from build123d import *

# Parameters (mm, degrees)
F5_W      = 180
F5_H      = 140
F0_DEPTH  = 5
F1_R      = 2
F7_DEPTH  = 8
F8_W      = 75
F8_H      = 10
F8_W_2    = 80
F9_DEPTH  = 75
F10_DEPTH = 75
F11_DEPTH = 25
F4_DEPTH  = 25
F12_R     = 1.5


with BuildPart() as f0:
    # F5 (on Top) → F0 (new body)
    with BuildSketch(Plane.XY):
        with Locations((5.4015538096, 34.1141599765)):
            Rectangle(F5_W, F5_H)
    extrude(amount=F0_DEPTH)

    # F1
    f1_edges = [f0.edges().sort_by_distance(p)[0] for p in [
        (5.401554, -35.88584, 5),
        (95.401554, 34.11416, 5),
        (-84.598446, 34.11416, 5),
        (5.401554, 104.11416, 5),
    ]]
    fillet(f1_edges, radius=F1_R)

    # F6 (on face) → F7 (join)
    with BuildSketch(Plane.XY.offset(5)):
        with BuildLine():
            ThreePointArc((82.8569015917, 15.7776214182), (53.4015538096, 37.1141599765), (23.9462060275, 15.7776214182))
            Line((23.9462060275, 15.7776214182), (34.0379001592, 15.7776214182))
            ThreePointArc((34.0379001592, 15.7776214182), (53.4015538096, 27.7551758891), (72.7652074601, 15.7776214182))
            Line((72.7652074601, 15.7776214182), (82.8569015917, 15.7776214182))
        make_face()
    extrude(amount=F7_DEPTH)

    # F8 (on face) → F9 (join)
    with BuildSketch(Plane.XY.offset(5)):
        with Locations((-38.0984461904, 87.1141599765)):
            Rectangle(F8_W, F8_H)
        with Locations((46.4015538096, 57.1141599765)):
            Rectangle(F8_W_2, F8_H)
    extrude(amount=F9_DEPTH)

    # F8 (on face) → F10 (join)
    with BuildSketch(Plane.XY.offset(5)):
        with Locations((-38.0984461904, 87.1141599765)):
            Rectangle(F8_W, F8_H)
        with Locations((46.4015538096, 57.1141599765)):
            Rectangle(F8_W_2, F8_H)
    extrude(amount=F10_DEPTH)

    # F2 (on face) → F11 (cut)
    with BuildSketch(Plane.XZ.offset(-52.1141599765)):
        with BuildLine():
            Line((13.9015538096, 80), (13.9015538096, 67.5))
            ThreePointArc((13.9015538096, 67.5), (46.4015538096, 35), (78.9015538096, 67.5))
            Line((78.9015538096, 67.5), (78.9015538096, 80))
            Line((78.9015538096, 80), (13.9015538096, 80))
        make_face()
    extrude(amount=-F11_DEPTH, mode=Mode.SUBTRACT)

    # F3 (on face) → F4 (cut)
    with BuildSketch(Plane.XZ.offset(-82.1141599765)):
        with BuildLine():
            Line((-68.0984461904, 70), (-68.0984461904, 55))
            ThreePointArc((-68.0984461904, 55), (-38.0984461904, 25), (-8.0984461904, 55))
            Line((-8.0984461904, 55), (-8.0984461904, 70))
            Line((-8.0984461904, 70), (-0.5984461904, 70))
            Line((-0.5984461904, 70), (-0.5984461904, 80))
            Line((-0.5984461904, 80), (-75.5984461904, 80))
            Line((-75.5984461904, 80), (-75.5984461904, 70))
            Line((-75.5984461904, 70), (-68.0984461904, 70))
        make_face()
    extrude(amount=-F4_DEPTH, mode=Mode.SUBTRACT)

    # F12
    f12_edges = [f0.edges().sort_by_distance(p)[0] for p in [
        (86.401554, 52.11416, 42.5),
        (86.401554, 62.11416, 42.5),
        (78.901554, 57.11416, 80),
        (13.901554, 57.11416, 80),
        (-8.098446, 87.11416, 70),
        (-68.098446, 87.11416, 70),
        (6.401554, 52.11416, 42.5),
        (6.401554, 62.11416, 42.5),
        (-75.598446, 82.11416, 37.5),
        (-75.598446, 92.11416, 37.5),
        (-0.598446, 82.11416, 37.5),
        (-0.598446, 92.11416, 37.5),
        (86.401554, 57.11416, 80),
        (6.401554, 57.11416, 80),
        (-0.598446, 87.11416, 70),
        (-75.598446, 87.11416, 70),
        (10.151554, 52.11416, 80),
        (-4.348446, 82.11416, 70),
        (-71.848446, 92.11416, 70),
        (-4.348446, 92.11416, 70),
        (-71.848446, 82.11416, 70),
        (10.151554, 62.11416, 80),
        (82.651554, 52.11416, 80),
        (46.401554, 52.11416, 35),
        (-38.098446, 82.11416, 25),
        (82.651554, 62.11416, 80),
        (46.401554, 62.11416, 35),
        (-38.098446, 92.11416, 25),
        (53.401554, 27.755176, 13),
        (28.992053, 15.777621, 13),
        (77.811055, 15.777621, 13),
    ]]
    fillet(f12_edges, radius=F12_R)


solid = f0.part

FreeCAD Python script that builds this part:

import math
import FreeCAD as App
import Part
import Sketcher
Q = App.Units.Quantity


def edges_at(feature, points):
    """Names of the edges that pass closest to the given points."""
    edges = feature.Shape.Edges
    near = lambda p: min(range(len(edges)), key=lambda i: edges[i].distToShape(Part.Vertex(*p))[0])
    return sorted({f"Edge{near(p) + 1}" for p in points})

doc = App.newDocument("Part")
params = doc.addObject("Spreadsheet::Sheet", "Params")
for row, (alias, value) in enumerate([
    ("sketch1_width", "180 mm"),
    ("sketch1_height", "140 mm"),
    ("pad1_length", "5 mm"),
    ("fillet_radius", "2 mm"),
    ("sketch2_radius", "31 mm"),
    ("pad2_length", "8 mm"),
    ("sketch3_width", "75 mm"),
    ("sketch3_width2", "80 mm"),
    ("sketch3_height", "10 mm"),
    ("pad3_length", "75 mm"),
    ("sketch4_width", "75 mm"),
    ("sketch4_width2", "80 mm"),
    ("sketch4_height", "10 mm"),
    ("pad4_length", "75 mm"),
    ("sketch5_radius", "32.5 mm"),
    ("sketch5_height", "12.5 mm"),
    ("pocket1_length", "25 mm"),
    ("sketch6_radius", "30 mm"),
    ("sketch6_width", "75 mm"),
    ("sketch6_height", "15 mm"),
    ("sketch6_height2", "10 mm"),
    ("pocket2_length", "25 mm"),
    ("fillet2_radius", "1.5 mm"),
], start=1):
    params.set(f"A{row}", alias)
    params.set(f"B{row}", "=" + value)
    params.setAlias(f"B{row}", alias)

body = doc.addObject("PartDesign::Body", "Body")

sketch1 = doc.addObject("Sketcher::SketchObject", "Sketch")
body.addObject(sketch1)
sketch1.AttachmentSupport = (doc.XY_Plane, [""])
sketch1.MapMode = "FlatFace"
sketch1.addGeometry([
    Part.LineSegment(App.Vector(-85, 104, 0), App.Vector(-85, -36, 0)),
    Part.LineSegment(App.Vector(-85, -36, 0), App.Vector(95, -36, 0)),
    Part.LineSegment(App.Vector(95, -36, 0), App.Vector(95, 104, 0)),
    Part.LineSegment(App.Vector(95, 104, 0), App.Vector(-85, 104, 0)),
], False)
sketch1.addConstraint([
    Sketcher.Constraint("Coincident", 0, 2, 1, 1),
    Sketcher.Constraint("Coincident", 1, 2, 2, 1),
    Sketcher.Constraint("Coincident", 2, 2, 3, 1),
    Sketcher.Constraint("Coincident", 3, 2, 0, 1),
    Sketcher.Constraint("Vertical", 0),
    Sketcher.Constraint("Horizontal", 1),
    Sketcher.Constraint("Vertical", 2),
    Sketcher.Constraint("Horizontal", 3),
    Sketcher.Constraint("DistanceX", 1, 1, 1, 2, Q("180 mm")),
    Sketcher.Constraint("DistanceY", 0, 2, 0, 1, Q("140 mm")),
    Sketcher.Constraint("DistanceY", 0, 2, -1, 1, Q("35.88584 mm")),
    Sketcher.Constraint("DistanceX", 0, 2, -1, 1, Q("84.598446 mm")),
])
sketch1.setExpression("Constraints[8]", "Params.sketch1_width")
sketch1.setExpression("Constraints[9]", "Params.sketch1_height")
pad1 = doc.addObject("PartDesign::Pad", "Pad")
body.addObject(pad1)
pad1.Profile = sketch1
pad1.setExpression("Length", "Params.pad1_length")
doc.recompute()

fillet = doc.addObject("PartDesign::Fillet", "Fillet")
body.addObject(fillet)
fillet.Base = (pad1, edges_at(pad1, [
    (5.402, -35.886, 5),
    (95.402, 34.114, 5),
    (-84.598, 34.114, 5),
    (5.402, 104.114, 5),
]))
fillet.setExpression("Radius", "Params.fillet_radius")

sketch2 = doc.addObject("Sketcher::SketchObject", "Sketch001")
body.addObject(sketch2)
sketch2.AttachmentSupport = (doc.XY_Plane, [""])
sketch2.MapMode = "FlatFace"
sketch2.AttachmentOffset = App.Placement(App.Vector(0, 0, 5), App.Rotation())
sketch2.addGeometry([
    Part.ArcOfCircle(Part.Circle(App.Vector(53, 6, 0), App.Vector(0, 0, 1), 31), math.radians(18), math.radians(162)),
    Part.LineSegment(App.Vector(24, 16, 0), App.Vector(34, 16, 0)),
    Part.ArcOfCircle(Part.Circle(App.Vector(53, 6, 0), App.Vector(0, 0, 1), 22), math.radians(27), math.radians(153)),
    Part.LineSegment(App.Vector(73, 16, 0), App.Vector(83, 16, 0)),
], False)
sketch2.addConstraint([
    Sketcher.Constraint("Coincident", 0, 2, 1, 1),
    Sketcher.Constraint("Coincident", 1, 2, 2, 2),
    Sketcher.Constraint("Coincident", 2, 1, 3, 1),
    Sketcher.Constraint("Coincident", 3, 2, 0, 1),
    Sketcher.Constraint("Horizontal", 1),
    Sketcher.Constraint("Horizontal", 3),
    Sketcher.Constraint("Coincident", 2, 3, 0, 3),
    Sketcher.Constraint("Horizontal", 1, 2, 2, 1),
    Sketcher.Constraint("Radius", 0, Q("31 mm")),
    Sketcher.Constraint("Radius", 2, Q("21.641016 mm")),
    Sketcher.Constraint("DistanceX", 0, 2, 2, 1, Q("48.819001 mm")),
    Sketcher.Constraint("DistanceX", -1, 1, 1, 2, Q("34.0379 mm")),
    Sketcher.Constraint("DistanceY", -1, 1, 0, 3, Q("6.11416 mm")),
])
sketch2.setExpression("Constraints[8]", "Params.sketch2_radius")
pad2 = doc.addObject("PartDesign::Pad", "Pad001")
body.addObject(pad2)
pad2.Profile = sketch2
pad2.setExpression("Length", "Params.pad2_length")

sketch3 = doc.addObject("Sketcher::SketchObject", "Sketch002")
body.addObject(sketch3)
sketch3.AttachmentSupport = (doc.XY_Plane, [""])
sketch3.MapMode = "FlatFace"
sketch3.AttachmentOffset = App.Placement(App.Vector(0, 0, 5), App.Rotation())
sketch3.addGeometry([
    Part.LineSegment(App.Vector(-76, 92, 0), App.Vector(-76, 82, 0)),
    Part.LineSegment(App.Vector(-76, 82, 0), App.Vector(-1, 82, 0)),
    Part.LineSegment(App.Vector(-1, 82, 0), App.Vector(-1, 92, 0)),
    Part.LineSegment(App.Vector(-1, 92, 0), App.Vector(-76, 92, 0)),
    Part.LineSegment(App.Vector(6, 62, 0), App.Vector(6, 52, 0)),
    Part.LineSegment(App.Vector(6, 52, 0), App.Vector(86, 52, 0)),
    Part.LineSegment(App.Vector(86, 52, 0), App.Vector(86, 62, 0)),
    Part.LineSegment(App.Vector(86, 62, 0), App.Vector(6, 62, 0)),
], False)
sketch3.addConstraint([
    Sketcher.Constraint("Coincident", 0, 2, 1, 1),
    Sketcher.Constraint("Coincident", 1, 2, 2, 1),
    Sketcher.Constraint("Coincident", 2, 2, 3, 1),
    Sketcher.Constraint("Coincident", 3, 2, 0, 1),
    Sketcher.Constraint("Coincident", 4, 2, 5, 1),
    Sketcher.Constraint("Coincident", 5, 2, 6, 1),
    Sketcher.Constraint("Coincident", 6, 2, 7, 1),
    Sketcher.Constraint("Coincident", 7, 2, 4, 1),
    Sketcher.Constraint("Vertical", 0),
    Sketcher.Constraint("Horizontal", 1),
    Sketcher.Constraint("Vertical", 2),
    Sketcher.Constraint("Horizontal", 3),
    Sketcher.Constraint("Vertical", 4),
    Sketcher.Constraint("Horizontal", 5),
    Sketcher.Constraint("Vertical", 6),
    Sketcher.Constraint("Horizontal", 7),
    Sketcher.Constraint("Equal", 2, 4),
    Sketcher.Constraint("DistanceX", 1, 1, 1, 2, Q("75 mm")),
    Sketcher.Constraint("DistanceX", 5, 1, 5, 2, Q("80 mm")),
    Sketcher.Constraint("DistanceY", 0, 2, 0, 1, Q("10 mm")),
    Sketcher.Constraint("DistanceX", 1, 2, 4, 2, Q("7 mm")),
    Sketcher.Constraint("DistanceY", 4, 2, 1, 2, Q("30 mm")),
    Sketcher.Constraint("DistanceY", -1, 1, 0, 2, Q("82.11416 mm")),
    Sketcher.Constraint("DistanceX", 0, 2, -1, 1, Q("75.598446 mm")),
])
sketch3.setExpression("Constraints[17]", "Params.sketch3_width")
sketch3.setExpression("Constraints[18]", "Params.sketch3_width2")
sketch3.setExpression("Constraints[19]", "Params.sketch3_height")
pad3 = doc.addObject("PartDesign::Pad", "Pad002")
body.addObject(pad3)
pad3.Profile = sketch3
pad3.setExpression("Length", "Params.pad3_length")

sketch4 = doc.addObject("Sketcher::SketchObject", "Sketch003")
body.addObject(sketch4)
sketch4.AttachmentSupport = (doc.XY_Plane, [""])
sketch4.MapMode = "FlatFace"
sketch4.AttachmentOffset = App.Placement(App.Vector(0, 0, 5), App.Rotation())
sketch4.addGeometry([
    Part.LineSegment(App.Vector(-76, 92, 0), App.Vector(-76, 82, 0)),
    Part.LineSegment(App.Vector(-76, 82, 0), App.Vector(-1, 82, 0)),
    Part.LineSegment(App.Vector(-1, 82, 0), App.Vector(-1, 92, 0)),
    Part.LineSegment(App.Vector(-1, 92, 0), App.Vector(-76, 92, 0)),
    Part.LineSegment(App.Vector(6, 62, 0), App.Vector(6, 52, 0)),
    Part.LineSegment(App.Vector(6, 52, 0), App.Vector(86, 52, 0)),
    Part.LineSegment(App.Vector(86, 52, 0), App.Vector(86, 62, 0)),
    Part.LineSegment(App.Vector(86, 62, 0), App.Vector(6, 62, 0)),
], False)
sketch4.addConstraint([
    Sketcher.Constraint("Coincident", 0, 2, 1, 1),
    Sketcher.Constraint("Coincident", 1, 2, 2, 1),
    Sketcher.Constraint("Coincident", 2, 2, 3, 1),
    Sketcher.Constraint("Coincident", 3, 2, 0, 1),
    Sketcher.Constraint("Coincident", 4, 2, 5, 1),
    Sketcher.Constraint("Coincident", 5, 2, 6, 1),
    Sketcher.Constraint("Coincident", 6, 2, 7, 1),
    Sketcher.Constraint("Coincident", 7, 2, 4, 1),
    Sketcher.Constraint("Vertical", 0),
    Sketcher.Constraint("Horizontal", 1),
    Sketcher.Constraint("Vertical", 2),
    Sketcher.Constraint("Horizontal", 3),
    Sketcher.Constraint("Vertical", 4),
    Sketcher.Constraint("Horizontal", 5),
    Sketcher.Constraint("Vertical", 6),
    Sketcher.Constraint("Horizontal", 7),
    Sketcher.Constraint("Equal", 2, 4),
    Sketcher.Constraint("DistanceX", 1, 1, 1, 2, Q("75 mm")),
    Sketcher.Constraint("DistanceX", 5, 1, 5, 2, Q("80 mm")),
    Sketcher.Constraint("DistanceY", 0, 2, 0, 1, Q("10 mm")),
    Sketcher.Constraint("DistanceX", 1, 2, 4, 2, Q("7 mm")),
    Sketcher.Constraint("DistanceY", 4, 2, 1, 2, Q("30 mm")),
    Sketcher.Constraint("DistanceY", -1, 1, 0, 2, Q("82.11416 mm")),
    Sketcher.Constraint("DistanceX", 0, 2, -1, 1, Q("75.598446 mm")),
])
sketch4.setExpression("Constraints[17]", "Params.sketch4_width")
sketch4.setExpression("Constraints[18]", "Params.sketch4_width2")
sketch4.setExpression("Constraints[19]", "Params.sketch4_height")
pad4 = doc.addObject("PartDesign::Pad", "Pad003")
body.addObject(pad4)
pad4.Profile = sketch4
pad4.setExpression("Length", "Params.pad4_length")

sketch5 = doc.addObject("Sketcher::SketchObject", "Sketch004")
body.addObject(sketch5)
sketch5.AttachmentSupport = (doc.XZ_Plane, [""])
sketch5.MapMode = "FlatFace"
sketch5.AttachmentOffset = App.Placement(App.Vector(0, 0, -52.11416), App.Rotation())
sketch5.addGeometry([
    Part.LineSegment(App.Vector(14, 80, 0), App.Vector(14, 68, 0)),
    Part.ArcOfCircle(Part.Circle(App.Vector(46, 68, 0), App.Vector(0, 0, 1), 32), math.radians(180), math.radians(360)),
    Part.LineSegment(App.Vector(79, 68, 0), App.Vector(79, 80, 0)),
    Part.LineSegment(App.Vector(79, 80, 0), App.Vector(14, 80, 0)),
], False)
sketch5.addConstraint([
    Sketcher.Constraint("Tangent", 0, 2, 1, 1),
    Sketcher.Constraint("Tangent", 1, 2, 2, 1),
    Sketcher.Constraint("Coincident", 2, 2, 3, 1),
    Sketcher.Constraint("Coincident", 3, 2, 0, 1),
    Sketcher.Constraint("Vertical", 0),
    Sketcher.Constraint("Vertical", 2),
    Sketcher.Constraint("Horizontal", 3),
    Sketcher.Constraint("Radius", 1, Q("32.5 mm")),
    Sketcher.Constraint("DistanceY", 0, 2, 0, 1, Q("12.5 mm")),
    Sketcher.Constraint("DistanceY", -1, 1, 2, 2, Q("80 mm")),
    Sketcher.Constraint("DistanceX", -1, 1, 1, 3, Q("46.401554 mm")),
])
sketch5.setExpression("Constraints[7]", "Params.sketch5_radius")
sketch5.setExpression("Constraints[8]", "Params.sketch5_height")
pocket1 = doc.addObject("PartDesign::Pocket", "Pocket")
body.addObject(pocket1)
pocket1.Profile = sketch5
pocket1.setExpression("Length", "Params.pocket1_length")

sketch6 = doc.addObject("Sketcher::SketchObject", "Sketch005")
body.addObject(sketch6)
sketch6.AttachmentSupport = (doc.XZ_Plane, [""])
sketch6.MapMode = "FlatFace"
sketch6.AttachmentOffset = App.Placement(App.Vector(0, 0, -82.11416), App.Rotation())
sketch6.addGeometry([
    Part.LineSegment(App.Vector(-68, 70, 0), App.Vector(-68, 55, 0)),
    Part.ArcOfCircle(Part.Circle(App.Vector(-38, 55, 0), App.Vector(0, 0, 1), 30), math.radians(180), math.radians(360)),
    Part.LineSegment(App.Vector(-8, 55, 0), App.Vector(-8, 70, 0)),
    Part.LineSegment(App.Vector(-8, 70, 0), App.Vector(-1, 70, 0)),
    Part.LineSegment(App.Vector(-1, 70, 0), App.Vector(-1, 80, 0)),
    Part.LineSegment(App.Vector(-1, 80, 0), App.Vector(-76, 80, 0)),
    Part.LineSegment(App.Vector(-76, 80, 0), App.Vector(-76, 70, 0)),
    Part.LineSegment(App.Vector(-76, 70, 0), App.Vector(-68, 70, 0)),
], False)
sketch6.addConstraint([
    Sketcher.Constraint("Tangent", 0, 2, 1, 1),
    Sketcher.Constraint("Tangent", 1, 2, 2, 1),
    Sketcher.Constraint("Coincident", 2, 2, 3, 1),
    Sketcher.Constraint("Coincident", 3, 2, 4, 1),
    Sketcher.Constraint("Coincident", 4, 2, 5, 1),
    Sketcher.Constraint("Coincident", 5, 2, 6, 1),
    Sketcher.Constraint("Coincident", 6, 2, 7, 1),
    Sketcher.Constraint("Coincident", 7, 2, 0, 1),
    Sketcher.Constraint("Vertical", 0),
    Sketcher.Constraint("Vertical", 2),
    Sketcher.Constraint("Horizontal", 3),
    Sketcher.Constraint("Vertical", 4),
    Sketcher.Constraint("Horizontal", 5),
    Sketcher.Constraint("Vertical", 6),
    Sketcher.Constraint("Horizontal", 7),
    Sketcher.Constraint("Horizontal", 3, 2, 6, 2),
    Sketcher.Constraint("Equal", 3, 7),
    Sketcher.Constraint("Radius", 1, Q("30 mm")),
    Sketcher.Constraint("DistanceX", 5, 2, 5, 1, Q("75 mm")),
    Sketcher.Constraint("DistanceY", 0, 2, 0, 1, Q("15 mm")),
    Sketcher.Constraint("DistanceY", 4, 1, 4, 2, Q("10 mm")),
    Sketcher.Constraint("DistanceY", -1, 1, 1, 3, Q("55 mm")),
    Sketcher.Constraint("DistanceX", 1, 3, -1, 1, Q("38.098446 mm")),
])
sketch6.setExpression("Constraints[17]", "Params.sketch6_radius")
sketch6.setExpression("Constraints[18]", "Params.sketch6_width")
sketch6.setExpression("Constraints[19]", "Params.sketch6_height")
sketch6.setExpression("Constraints[20]", "Params.sketch6_height2")
pocket2 = doc.addObject("PartDesign::Pocket", "Pocket001")
body.addObject(pocket2)
pocket2.Profile = sketch6
pocket2.setExpression("Length", "Params.pocket2_length")
doc.recompute()

fillet2 = doc.addObject("PartDesign::Fillet", "Fillet001")
body.addObject(fillet2)
fillet2.Base = (pocket2, edges_at(pocket2, [
    (86.402, 52.114, 42.5),
    (86.402, 62.114, 42.5),
    (78.902, 57.114, 80),
    (13.902, 57.114, 80),
    (-8.098, 87.114, 70),
    (-68.098, 87.114, 70),
    (6.402, 52.114, 42.5),
    (6.402, 62.114, 42.5),
    (-75.598, 82.114, 37.5),
    (-75.598, 92.114, 37.5),
    (-0.598, 82.114, 37.5),
    (-0.598, 92.114, 37.5),
    (86.402, 57.114, 80),
    (6.402, 57.114, 80),
    (-0.598, 87.114, 70),
    (-75.598, 87.114, 70),
    (10.152, 52.114, 80),
    (-4.348, 82.114, 70),
    (-71.848, 92.114, 70),
    (-4.348, 92.114, 70),
    (-71.848, 82.114, 70),
    (10.152, 62.114, 80),
    (82.652, 52.114, 80),
    (46.402, 52.114, 35),
    (-38.098, 82.114, 25),
    (82.652, 62.114, 80),
    (46.402, 62.114, 35),
    (-38.098, 92.114, 25),
    (53.402, 27.755, 13),
    (28.992, 15.778, 13),
    (77.811, 15.778, 13),
]))
fillet2.setExpression("Radius", "Params.fillet2_radius")

doc.recompute()
